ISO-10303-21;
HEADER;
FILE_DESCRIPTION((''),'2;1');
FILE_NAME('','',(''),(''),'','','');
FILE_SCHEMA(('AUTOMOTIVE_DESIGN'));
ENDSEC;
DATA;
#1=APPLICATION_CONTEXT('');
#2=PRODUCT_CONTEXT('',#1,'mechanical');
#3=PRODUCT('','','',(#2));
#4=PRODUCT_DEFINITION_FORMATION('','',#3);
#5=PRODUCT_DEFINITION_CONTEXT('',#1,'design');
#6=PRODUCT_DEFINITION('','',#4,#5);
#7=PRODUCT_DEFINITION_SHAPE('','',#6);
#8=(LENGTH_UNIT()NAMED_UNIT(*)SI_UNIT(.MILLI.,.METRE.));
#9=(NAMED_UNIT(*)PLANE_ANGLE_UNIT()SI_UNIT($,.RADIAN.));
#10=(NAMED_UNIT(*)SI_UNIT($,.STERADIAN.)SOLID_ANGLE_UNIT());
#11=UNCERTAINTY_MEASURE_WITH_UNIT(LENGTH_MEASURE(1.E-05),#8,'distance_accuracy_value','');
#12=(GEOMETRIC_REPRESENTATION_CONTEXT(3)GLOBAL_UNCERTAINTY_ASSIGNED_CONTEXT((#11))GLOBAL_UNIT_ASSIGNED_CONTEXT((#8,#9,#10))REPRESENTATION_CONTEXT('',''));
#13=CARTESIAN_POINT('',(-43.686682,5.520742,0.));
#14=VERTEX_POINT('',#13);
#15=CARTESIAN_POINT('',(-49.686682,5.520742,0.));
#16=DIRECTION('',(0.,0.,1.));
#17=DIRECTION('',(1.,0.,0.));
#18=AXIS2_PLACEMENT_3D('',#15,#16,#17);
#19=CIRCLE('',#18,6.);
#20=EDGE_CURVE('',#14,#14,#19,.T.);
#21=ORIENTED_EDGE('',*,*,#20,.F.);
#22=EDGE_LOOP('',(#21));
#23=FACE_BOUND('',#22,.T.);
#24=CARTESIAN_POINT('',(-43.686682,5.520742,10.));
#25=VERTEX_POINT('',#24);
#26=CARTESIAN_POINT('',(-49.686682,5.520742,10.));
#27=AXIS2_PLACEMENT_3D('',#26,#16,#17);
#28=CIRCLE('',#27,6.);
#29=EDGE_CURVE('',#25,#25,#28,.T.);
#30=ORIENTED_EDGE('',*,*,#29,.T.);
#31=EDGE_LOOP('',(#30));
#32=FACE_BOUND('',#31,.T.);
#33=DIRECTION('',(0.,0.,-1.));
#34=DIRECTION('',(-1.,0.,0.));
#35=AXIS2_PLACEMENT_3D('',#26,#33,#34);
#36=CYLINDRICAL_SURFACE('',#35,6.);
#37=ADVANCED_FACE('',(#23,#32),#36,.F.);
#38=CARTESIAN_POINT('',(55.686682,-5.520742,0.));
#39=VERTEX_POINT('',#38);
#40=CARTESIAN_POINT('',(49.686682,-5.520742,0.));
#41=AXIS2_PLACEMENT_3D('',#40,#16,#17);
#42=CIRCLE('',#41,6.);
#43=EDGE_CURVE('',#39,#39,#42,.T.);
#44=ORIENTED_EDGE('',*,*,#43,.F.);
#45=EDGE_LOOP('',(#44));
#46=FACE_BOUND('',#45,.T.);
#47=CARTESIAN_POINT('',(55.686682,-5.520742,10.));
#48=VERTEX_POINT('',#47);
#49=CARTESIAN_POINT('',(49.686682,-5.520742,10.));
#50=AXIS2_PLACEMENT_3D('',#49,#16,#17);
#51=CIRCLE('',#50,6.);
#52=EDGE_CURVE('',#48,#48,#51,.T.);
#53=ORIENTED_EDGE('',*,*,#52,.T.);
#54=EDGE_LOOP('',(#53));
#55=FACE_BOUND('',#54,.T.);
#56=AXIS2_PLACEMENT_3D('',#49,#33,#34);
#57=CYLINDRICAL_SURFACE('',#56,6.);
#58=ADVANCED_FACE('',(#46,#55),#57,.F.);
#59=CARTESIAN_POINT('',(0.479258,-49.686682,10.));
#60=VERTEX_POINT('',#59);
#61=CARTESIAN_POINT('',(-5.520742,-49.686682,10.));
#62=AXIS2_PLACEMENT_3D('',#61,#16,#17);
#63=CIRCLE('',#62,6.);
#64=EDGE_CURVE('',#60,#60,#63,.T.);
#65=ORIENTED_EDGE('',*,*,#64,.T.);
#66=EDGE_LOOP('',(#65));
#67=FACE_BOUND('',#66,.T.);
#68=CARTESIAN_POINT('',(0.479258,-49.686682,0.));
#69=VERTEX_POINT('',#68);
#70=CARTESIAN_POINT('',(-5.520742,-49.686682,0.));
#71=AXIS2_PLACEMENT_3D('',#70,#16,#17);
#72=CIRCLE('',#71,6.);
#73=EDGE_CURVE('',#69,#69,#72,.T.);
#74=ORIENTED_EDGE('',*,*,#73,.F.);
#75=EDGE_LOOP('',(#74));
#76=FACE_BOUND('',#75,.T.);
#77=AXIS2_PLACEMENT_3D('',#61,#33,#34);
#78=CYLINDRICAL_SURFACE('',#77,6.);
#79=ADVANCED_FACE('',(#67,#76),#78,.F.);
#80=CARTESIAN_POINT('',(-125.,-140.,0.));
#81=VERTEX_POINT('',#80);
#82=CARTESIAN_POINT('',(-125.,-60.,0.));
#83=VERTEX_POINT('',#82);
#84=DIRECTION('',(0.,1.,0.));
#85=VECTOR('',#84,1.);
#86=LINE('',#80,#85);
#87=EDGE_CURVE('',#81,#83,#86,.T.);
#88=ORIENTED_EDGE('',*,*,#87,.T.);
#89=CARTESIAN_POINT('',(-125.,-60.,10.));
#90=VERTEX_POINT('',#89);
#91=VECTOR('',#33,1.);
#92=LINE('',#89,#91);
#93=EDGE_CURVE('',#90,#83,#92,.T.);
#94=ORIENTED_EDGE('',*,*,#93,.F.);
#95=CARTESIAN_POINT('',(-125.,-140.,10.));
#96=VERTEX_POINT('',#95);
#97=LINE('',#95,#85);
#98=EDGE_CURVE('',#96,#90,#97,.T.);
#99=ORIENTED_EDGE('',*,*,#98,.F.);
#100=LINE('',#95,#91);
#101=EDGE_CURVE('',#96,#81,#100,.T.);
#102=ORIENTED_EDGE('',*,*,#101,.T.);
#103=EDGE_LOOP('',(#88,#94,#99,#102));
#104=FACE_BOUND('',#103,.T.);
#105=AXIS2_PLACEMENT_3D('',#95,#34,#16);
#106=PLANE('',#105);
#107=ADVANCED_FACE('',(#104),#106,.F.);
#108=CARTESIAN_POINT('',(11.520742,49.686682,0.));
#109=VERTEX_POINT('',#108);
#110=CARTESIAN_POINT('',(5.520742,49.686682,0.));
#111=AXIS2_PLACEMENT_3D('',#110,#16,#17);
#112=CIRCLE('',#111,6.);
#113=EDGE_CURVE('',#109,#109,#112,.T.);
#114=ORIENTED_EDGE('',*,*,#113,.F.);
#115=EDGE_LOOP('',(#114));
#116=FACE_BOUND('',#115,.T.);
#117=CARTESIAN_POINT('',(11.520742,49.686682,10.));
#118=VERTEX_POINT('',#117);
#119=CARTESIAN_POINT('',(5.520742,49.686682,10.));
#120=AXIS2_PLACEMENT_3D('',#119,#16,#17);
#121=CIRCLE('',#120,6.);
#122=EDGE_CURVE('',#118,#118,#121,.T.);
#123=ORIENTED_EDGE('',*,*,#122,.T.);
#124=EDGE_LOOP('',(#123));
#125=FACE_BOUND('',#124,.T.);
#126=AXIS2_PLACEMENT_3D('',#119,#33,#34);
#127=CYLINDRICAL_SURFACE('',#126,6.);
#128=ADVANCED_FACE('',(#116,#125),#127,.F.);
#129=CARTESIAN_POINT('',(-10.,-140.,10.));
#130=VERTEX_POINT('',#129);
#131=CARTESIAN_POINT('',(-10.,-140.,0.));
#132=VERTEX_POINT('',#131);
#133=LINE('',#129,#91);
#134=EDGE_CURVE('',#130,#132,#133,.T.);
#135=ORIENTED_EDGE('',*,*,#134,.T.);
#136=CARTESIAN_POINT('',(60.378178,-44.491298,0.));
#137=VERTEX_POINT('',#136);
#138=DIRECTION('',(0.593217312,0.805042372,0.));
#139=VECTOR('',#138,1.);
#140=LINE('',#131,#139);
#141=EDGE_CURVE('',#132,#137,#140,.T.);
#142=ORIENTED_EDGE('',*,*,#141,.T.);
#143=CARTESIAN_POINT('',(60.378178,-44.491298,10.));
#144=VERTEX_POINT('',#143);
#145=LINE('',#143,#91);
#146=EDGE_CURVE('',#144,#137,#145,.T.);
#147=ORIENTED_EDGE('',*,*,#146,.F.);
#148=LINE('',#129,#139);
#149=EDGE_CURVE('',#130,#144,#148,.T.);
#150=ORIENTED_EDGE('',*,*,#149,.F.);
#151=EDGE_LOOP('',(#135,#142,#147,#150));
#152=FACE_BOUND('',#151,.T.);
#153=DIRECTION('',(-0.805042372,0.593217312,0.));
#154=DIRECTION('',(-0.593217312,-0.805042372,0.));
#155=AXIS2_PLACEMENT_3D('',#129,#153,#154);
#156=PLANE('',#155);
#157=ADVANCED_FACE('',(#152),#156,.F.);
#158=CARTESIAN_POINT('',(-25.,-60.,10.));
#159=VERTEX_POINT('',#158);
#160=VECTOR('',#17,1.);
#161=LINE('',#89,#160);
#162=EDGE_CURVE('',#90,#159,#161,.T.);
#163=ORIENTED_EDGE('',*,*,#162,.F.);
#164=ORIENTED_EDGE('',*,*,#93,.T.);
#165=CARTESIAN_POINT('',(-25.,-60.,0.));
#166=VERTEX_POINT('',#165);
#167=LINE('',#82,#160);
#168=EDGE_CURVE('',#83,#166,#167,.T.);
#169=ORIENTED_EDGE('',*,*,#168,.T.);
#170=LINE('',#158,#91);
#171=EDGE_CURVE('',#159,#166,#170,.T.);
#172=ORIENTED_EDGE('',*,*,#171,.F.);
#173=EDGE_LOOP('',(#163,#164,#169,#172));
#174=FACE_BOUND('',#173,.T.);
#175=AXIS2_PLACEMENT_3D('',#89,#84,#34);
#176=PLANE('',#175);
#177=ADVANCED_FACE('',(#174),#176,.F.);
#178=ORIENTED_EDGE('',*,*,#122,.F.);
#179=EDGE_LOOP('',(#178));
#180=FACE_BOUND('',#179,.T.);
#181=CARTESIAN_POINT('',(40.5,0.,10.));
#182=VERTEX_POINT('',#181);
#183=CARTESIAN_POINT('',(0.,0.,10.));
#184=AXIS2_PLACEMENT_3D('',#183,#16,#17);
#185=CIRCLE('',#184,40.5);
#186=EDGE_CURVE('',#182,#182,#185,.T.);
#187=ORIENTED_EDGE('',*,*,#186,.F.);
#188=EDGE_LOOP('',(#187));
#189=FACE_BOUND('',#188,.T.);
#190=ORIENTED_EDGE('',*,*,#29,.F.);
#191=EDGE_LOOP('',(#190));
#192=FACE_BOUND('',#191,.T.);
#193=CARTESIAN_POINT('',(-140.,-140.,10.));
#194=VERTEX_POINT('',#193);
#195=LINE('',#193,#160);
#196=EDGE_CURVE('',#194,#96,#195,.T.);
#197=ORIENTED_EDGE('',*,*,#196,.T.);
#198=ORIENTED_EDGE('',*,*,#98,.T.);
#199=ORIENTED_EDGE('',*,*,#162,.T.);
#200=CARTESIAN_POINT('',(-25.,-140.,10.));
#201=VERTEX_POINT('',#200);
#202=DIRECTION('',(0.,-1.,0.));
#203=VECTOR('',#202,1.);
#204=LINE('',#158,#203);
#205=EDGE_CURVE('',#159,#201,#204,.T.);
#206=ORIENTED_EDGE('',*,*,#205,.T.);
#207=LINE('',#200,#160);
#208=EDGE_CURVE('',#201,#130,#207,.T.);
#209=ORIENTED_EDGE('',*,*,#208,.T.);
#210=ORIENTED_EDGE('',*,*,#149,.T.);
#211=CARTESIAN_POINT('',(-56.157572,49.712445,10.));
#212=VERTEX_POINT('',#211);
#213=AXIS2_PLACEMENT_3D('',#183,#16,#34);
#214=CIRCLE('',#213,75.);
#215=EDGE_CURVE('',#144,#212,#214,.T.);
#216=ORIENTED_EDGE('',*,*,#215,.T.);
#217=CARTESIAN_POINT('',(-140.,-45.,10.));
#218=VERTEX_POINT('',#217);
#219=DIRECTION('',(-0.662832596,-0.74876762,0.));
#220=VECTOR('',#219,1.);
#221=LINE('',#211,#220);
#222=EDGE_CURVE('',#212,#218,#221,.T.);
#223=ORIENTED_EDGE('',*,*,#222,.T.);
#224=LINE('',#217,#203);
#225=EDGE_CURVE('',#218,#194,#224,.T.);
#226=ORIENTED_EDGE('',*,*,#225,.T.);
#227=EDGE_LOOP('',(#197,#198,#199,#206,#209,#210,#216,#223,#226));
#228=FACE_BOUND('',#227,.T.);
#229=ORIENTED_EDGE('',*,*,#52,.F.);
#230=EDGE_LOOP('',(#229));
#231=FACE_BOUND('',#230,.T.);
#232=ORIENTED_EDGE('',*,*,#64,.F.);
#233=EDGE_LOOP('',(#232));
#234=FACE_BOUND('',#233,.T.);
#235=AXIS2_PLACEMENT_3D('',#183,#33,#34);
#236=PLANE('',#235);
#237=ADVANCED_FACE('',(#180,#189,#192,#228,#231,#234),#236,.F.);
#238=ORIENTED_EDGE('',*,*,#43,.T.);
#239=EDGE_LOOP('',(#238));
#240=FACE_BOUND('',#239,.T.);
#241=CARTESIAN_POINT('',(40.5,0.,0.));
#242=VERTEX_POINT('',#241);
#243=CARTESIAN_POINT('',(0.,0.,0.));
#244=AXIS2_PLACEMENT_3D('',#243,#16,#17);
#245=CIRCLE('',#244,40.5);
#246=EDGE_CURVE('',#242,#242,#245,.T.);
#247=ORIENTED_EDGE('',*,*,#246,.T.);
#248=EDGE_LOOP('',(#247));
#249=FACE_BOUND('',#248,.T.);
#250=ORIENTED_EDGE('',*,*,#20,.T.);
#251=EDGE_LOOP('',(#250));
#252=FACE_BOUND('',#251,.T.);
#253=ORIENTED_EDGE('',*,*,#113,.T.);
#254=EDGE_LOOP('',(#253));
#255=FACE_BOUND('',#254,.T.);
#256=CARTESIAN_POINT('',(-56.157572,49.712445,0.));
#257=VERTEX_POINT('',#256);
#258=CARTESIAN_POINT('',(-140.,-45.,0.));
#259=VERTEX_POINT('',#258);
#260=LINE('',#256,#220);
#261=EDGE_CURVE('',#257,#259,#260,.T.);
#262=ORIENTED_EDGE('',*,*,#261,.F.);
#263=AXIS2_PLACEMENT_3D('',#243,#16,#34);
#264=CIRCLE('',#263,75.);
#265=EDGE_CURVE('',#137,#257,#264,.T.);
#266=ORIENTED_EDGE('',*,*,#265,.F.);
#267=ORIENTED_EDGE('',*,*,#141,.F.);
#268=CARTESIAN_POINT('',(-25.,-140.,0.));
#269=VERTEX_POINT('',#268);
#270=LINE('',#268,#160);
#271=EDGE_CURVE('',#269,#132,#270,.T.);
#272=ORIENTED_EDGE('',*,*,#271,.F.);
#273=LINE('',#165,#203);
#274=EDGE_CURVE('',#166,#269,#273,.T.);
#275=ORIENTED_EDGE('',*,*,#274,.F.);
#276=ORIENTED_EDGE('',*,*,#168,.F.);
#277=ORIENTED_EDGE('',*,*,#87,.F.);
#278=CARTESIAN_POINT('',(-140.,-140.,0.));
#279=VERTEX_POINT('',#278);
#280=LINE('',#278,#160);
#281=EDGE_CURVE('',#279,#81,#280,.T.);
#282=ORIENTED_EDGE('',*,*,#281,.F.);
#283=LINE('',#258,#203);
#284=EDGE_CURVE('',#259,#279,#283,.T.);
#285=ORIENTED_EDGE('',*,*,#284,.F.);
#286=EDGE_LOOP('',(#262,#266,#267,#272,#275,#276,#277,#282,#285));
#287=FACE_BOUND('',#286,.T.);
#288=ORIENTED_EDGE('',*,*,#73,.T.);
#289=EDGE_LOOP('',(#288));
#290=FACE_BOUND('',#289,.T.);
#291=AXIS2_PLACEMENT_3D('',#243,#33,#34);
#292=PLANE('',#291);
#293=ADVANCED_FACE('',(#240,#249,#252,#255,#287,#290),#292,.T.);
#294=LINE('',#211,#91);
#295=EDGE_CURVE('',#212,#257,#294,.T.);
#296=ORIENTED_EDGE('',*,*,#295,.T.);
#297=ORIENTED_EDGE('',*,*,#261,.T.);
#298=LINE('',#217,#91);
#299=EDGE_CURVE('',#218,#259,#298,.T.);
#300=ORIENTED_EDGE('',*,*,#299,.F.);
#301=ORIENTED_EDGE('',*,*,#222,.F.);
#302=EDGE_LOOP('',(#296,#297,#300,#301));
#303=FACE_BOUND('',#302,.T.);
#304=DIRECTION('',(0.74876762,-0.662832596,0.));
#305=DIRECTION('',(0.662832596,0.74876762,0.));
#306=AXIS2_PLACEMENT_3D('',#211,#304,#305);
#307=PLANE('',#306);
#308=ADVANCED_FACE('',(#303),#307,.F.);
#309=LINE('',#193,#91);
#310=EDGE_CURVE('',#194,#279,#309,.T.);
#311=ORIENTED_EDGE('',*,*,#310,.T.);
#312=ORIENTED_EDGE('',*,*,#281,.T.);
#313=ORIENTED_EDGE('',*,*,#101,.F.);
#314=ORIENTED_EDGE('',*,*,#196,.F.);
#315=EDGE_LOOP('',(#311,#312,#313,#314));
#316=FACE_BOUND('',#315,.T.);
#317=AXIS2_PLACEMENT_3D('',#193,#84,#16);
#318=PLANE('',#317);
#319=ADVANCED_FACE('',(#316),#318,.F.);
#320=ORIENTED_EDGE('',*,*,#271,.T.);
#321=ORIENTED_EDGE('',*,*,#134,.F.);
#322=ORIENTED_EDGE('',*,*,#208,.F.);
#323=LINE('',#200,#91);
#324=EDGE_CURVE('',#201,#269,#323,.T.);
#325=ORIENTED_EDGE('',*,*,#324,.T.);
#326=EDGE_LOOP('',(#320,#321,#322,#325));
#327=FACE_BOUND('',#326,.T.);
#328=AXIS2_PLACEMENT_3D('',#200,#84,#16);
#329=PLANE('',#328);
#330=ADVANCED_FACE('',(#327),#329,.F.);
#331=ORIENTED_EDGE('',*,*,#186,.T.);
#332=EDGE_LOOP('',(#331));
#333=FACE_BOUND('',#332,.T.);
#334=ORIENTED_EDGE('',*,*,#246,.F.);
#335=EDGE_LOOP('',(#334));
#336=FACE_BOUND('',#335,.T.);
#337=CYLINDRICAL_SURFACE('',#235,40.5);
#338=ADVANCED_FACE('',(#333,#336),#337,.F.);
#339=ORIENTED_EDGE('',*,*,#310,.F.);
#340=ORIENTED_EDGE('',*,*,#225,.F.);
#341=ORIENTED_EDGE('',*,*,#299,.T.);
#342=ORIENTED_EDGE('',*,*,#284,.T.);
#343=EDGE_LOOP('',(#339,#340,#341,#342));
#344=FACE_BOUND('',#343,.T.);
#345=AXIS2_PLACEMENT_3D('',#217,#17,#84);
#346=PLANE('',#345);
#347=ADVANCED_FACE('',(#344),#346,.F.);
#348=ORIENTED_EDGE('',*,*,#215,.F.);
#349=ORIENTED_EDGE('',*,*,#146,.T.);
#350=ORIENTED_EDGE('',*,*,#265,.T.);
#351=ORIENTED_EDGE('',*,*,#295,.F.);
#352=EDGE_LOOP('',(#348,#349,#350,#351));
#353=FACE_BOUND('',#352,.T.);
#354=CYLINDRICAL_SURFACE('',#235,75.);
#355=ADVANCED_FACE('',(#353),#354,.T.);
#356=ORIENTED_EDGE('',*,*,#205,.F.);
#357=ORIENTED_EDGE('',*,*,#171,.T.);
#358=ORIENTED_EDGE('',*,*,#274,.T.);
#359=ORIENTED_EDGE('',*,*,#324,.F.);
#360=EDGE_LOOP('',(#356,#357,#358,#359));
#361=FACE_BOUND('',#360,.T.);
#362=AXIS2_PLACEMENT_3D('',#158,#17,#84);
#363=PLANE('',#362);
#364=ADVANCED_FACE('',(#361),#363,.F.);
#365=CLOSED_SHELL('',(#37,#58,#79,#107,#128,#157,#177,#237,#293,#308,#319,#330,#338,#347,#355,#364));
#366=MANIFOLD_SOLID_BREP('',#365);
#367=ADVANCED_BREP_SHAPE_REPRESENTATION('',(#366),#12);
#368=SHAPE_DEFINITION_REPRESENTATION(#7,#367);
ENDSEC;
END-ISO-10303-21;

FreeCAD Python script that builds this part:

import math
import FreeCAD as App
import Part
import Sketcher
Q = App.Units.Quantity

doc = App.newDocument("Part")
params = doc.addObject("Spreadsheet::Sheet", "Params")
for row, (alias, value) in enumerate([
    ("sketch1_diameter", "12 mm"),
    ("sketch1_diameter2", "81 mm"),
    ("sketch1_radius", "75 mm"),
    ("sketch1_width", "15 mm"),
    ("sketch1_width2", "100 mm"),
    ("pad1_length", "10 mm"),
], start=1):
    params.set(f"A{row}", alias)
    params.set(f"B{row}", "=" + value)
    params.setAlias(f"B{row}", alias)

body = doc.addObject("PartDesign::Body", "Body")

sketch1 = body.newObject("Sketcher::SketchObject", "Sketch")
sketch1.AttachmentSupport = (doc.getObject("XY_Plane"), [""])
sketch1.MapMode = "FlatFace"
sketch1.addGeometry(Part.LineSegment(App.Vector(-25, -140, 0), App.Vector(-10, -140, 0)), False)
sketch1.addGeometry(Part.LineSegment(App.Vector(-10, -140, 0), App.Vector(60.378178, -44.491298, 0)), False)
sketch1.addGeometry(Part.ArcOfCircle(Part.Circle(App.Vector(0, 0, 0), App.Vector(0, 0, 1), 75), math.radians(-36.385652), math.radians(138.483738)), False)
sketch1.addGeometry(Part.LineSegment(App.Vector(-56.157572, 49.712445, 0), App.Vector(-140, -45, 0)), False)
sketch1.addGeometry(Part.LineSegment(App.Vector(-140, -45, 0), App.Vector(-140, -140, 0)), False)
sketch1.addGeometry(Part.LineSegment(App.Vector(-140, -140, 0), App.Vector(-125, -140, 0)), False)
sketch1.addGeometry(Part.LineSegment(App.Vector(-125, -140, 0), App.Vector(-125, -60, 0)), False)
sketch1.addGeometry(Part.LineSegment(App.Vector(-125, -60, 0), App.Vector(-25, -60, 0)), False)
sketch1.addGeometry(Part.LineSegment(App.Vector(-25, -60, 0), App.Vector(-25, -140, 0)), False)
sketch1.addGeometry(Part.Circle(App.Vector(-5.520742, -49.686682, 0), App.Vector(0, 0, 1), 6), False)
sketch1.addGeometry(Part.Circle(App.Vector(0, 0, 0), App.Vector(0, 0, 1), 40.5), False)
sketch1.addGeometry(Part.Circle(App.Vector(49.686682, -5.520742, 0), App.Vector(0, 0, 1), 6), False)
sketch1.addGeometry(Part.Circle(App.Vector(-49.686682, 5.520742, 0), App.Vector(0, 0, 1), 6), False)
sketch1.addGeometry(Part.Circle(App.Vector(5.520742, 49.686682, 0), App.Vector(0, 0, 1), 6), False)
sketch1.addConstraint(Sketcher.Constraint("Coincident", 0, 2, 1, 1))
sketch1.addConstraint(Sketcher.Constraint("Tangent", 1, 2, 2, 1))
sketch1.addConstraint(Sketcher.Constraint("Tangent", 2, 2, 3, 1))
sketch1.addConstraint(Sketcher.Constraint("Coincident", 3, 2, 4, 1))
sketch1.addConstraint(Sketcher.Constraint("Coincident", 4, 2, 5, 1))
sketch1.addConstraint(Sketcher.Constraint("Coincident", 5, 2, 6, 1))
sketch1.addConstraint(Sketcher.Constraint("Coincident", 6, 2, 7, 1))
sketch1.addConstraint(Sketcher.Constraint("Coincident", 7, 2, 8, 1))
sketch1.addConstraint(Sketcher.Constraint("Coincident", 8, 2, 0, 1))
sketch1.addConstraint(Sketcher.Constraint("Horizontal", 0))
sketch1.addConstraint(Sketcher.Constraint("Vertical", 4))
sketch1.addConstraint(Sketcher.Constraint("Horizontal", 5))
sketch1.addConstraint(Sketcher.Constraint("Vertical", 6))
sketch1.addConstraint(Sketcher.Constraint("Horizontal", 7))
sketch1.addConstraint(Sketcher.Constraint("Vertical", 8))
sketch1.addConstraint(Sketcher.Constraint("Coincident", 2, 3, -1, 1))
sketch1.addConstraint(Sketcher.Constraint("Coincident", 10, 3, -1, 1))
sketch1.addConstraint(Sketcher.Constraint("Equal", 9, 11))
sketch1.addConstraint(Sketcher.Constraint("Equal", 11, 12))
sketch1.addConstraint(Sketcher.Constraint("Equal", 12, 13))
sketch1.addConstraint(Sketcher.Constraint("Symmetric", 11, 3, 12, 3, -1, 1))
sketch1.addConstraint(Sketcher.Constraint("Symmetric", 9, 3, 13, 3, -1, 1))
sketch1.addConstraint(Sketcher.Constraint("Horizontal", 0, 2, 4, 2))
sketch1.addConstraint(Sketcher.Constraint("Equal", 0, 5))
sketch1.addConstraint(Sketcher.Constraint("Diameter", 9, Q("12 mm")))
sketch1.addConstraint(Sketcher.Constraint("Diameter", 10, Q("81 mm")))
sketch1.addConstraint(Sketcher.Constraint("Radius", 2, Q("75 mm")))
sketch1.addConstraint(Sketcher.Constraint("DistanceX", 0, 1, 0, 2, Q("15 mm")))
sketch1.addConstraint(Sketcher.Constraint("DistanceX", 7, 1, 7, 2, Q("100 mm")))
sketch1.addConstraint(Sketcher.Constraint("DistanceY", 4, 2, 4, 1, Q("95 mm")))
sketch1.addConstraint(Sketcher.Constraint("DistanceY", 6, 1, 6, 2, Q("80 mm")))
sketch1.addConstraint(Sketcher.Constraint("DistanceX", 0, 2, -1, 1, Q("10 mm")))
sketch1.addConstraint(Sketcher.Constraint("DistanceY", 0, 2, -1, 1, Q("140 mm")))
sketch1.addConstraint(Sketcher.Constraint("DistanceY", 9, 3, 11, 3, Q("44.16594 mm")))
sketch1.addConstraint(Sketcher.Constraint("DistanceX", 12, 3, 9, 3, Q("44.16594 mm")))
sketch1.addConstraint(Sketcher.Constraint("DistanceX", 9, 3, 1, 2, Q("65.89892 mm")))
sketch1.addConstraint(Sketcher.Constraint("DistanceY", 1, 2, 13, 3, Q("94.177981 mm")))
sketch1.setExpression("Constraints[24]", "Params.sketch1_diameter")
sketch1.setExpression("Constraints[25]", "Params.sketch1_diameter2")
sketch1.setExpression("Constraints[26]", "Params.sketch1_radius")
sketch1.setExpression("Constraints[27]", "Params.sketch1_width")
sketch1.setExpression("Constraints[28]", "Params.sketch1_width2")
pad1 = body.newObject("PartDesign::Pad", "Pad")
pad1.Profile = sketch1
pad1.setExpression("Length", "Params.pad1_length")

doc.recompute()
